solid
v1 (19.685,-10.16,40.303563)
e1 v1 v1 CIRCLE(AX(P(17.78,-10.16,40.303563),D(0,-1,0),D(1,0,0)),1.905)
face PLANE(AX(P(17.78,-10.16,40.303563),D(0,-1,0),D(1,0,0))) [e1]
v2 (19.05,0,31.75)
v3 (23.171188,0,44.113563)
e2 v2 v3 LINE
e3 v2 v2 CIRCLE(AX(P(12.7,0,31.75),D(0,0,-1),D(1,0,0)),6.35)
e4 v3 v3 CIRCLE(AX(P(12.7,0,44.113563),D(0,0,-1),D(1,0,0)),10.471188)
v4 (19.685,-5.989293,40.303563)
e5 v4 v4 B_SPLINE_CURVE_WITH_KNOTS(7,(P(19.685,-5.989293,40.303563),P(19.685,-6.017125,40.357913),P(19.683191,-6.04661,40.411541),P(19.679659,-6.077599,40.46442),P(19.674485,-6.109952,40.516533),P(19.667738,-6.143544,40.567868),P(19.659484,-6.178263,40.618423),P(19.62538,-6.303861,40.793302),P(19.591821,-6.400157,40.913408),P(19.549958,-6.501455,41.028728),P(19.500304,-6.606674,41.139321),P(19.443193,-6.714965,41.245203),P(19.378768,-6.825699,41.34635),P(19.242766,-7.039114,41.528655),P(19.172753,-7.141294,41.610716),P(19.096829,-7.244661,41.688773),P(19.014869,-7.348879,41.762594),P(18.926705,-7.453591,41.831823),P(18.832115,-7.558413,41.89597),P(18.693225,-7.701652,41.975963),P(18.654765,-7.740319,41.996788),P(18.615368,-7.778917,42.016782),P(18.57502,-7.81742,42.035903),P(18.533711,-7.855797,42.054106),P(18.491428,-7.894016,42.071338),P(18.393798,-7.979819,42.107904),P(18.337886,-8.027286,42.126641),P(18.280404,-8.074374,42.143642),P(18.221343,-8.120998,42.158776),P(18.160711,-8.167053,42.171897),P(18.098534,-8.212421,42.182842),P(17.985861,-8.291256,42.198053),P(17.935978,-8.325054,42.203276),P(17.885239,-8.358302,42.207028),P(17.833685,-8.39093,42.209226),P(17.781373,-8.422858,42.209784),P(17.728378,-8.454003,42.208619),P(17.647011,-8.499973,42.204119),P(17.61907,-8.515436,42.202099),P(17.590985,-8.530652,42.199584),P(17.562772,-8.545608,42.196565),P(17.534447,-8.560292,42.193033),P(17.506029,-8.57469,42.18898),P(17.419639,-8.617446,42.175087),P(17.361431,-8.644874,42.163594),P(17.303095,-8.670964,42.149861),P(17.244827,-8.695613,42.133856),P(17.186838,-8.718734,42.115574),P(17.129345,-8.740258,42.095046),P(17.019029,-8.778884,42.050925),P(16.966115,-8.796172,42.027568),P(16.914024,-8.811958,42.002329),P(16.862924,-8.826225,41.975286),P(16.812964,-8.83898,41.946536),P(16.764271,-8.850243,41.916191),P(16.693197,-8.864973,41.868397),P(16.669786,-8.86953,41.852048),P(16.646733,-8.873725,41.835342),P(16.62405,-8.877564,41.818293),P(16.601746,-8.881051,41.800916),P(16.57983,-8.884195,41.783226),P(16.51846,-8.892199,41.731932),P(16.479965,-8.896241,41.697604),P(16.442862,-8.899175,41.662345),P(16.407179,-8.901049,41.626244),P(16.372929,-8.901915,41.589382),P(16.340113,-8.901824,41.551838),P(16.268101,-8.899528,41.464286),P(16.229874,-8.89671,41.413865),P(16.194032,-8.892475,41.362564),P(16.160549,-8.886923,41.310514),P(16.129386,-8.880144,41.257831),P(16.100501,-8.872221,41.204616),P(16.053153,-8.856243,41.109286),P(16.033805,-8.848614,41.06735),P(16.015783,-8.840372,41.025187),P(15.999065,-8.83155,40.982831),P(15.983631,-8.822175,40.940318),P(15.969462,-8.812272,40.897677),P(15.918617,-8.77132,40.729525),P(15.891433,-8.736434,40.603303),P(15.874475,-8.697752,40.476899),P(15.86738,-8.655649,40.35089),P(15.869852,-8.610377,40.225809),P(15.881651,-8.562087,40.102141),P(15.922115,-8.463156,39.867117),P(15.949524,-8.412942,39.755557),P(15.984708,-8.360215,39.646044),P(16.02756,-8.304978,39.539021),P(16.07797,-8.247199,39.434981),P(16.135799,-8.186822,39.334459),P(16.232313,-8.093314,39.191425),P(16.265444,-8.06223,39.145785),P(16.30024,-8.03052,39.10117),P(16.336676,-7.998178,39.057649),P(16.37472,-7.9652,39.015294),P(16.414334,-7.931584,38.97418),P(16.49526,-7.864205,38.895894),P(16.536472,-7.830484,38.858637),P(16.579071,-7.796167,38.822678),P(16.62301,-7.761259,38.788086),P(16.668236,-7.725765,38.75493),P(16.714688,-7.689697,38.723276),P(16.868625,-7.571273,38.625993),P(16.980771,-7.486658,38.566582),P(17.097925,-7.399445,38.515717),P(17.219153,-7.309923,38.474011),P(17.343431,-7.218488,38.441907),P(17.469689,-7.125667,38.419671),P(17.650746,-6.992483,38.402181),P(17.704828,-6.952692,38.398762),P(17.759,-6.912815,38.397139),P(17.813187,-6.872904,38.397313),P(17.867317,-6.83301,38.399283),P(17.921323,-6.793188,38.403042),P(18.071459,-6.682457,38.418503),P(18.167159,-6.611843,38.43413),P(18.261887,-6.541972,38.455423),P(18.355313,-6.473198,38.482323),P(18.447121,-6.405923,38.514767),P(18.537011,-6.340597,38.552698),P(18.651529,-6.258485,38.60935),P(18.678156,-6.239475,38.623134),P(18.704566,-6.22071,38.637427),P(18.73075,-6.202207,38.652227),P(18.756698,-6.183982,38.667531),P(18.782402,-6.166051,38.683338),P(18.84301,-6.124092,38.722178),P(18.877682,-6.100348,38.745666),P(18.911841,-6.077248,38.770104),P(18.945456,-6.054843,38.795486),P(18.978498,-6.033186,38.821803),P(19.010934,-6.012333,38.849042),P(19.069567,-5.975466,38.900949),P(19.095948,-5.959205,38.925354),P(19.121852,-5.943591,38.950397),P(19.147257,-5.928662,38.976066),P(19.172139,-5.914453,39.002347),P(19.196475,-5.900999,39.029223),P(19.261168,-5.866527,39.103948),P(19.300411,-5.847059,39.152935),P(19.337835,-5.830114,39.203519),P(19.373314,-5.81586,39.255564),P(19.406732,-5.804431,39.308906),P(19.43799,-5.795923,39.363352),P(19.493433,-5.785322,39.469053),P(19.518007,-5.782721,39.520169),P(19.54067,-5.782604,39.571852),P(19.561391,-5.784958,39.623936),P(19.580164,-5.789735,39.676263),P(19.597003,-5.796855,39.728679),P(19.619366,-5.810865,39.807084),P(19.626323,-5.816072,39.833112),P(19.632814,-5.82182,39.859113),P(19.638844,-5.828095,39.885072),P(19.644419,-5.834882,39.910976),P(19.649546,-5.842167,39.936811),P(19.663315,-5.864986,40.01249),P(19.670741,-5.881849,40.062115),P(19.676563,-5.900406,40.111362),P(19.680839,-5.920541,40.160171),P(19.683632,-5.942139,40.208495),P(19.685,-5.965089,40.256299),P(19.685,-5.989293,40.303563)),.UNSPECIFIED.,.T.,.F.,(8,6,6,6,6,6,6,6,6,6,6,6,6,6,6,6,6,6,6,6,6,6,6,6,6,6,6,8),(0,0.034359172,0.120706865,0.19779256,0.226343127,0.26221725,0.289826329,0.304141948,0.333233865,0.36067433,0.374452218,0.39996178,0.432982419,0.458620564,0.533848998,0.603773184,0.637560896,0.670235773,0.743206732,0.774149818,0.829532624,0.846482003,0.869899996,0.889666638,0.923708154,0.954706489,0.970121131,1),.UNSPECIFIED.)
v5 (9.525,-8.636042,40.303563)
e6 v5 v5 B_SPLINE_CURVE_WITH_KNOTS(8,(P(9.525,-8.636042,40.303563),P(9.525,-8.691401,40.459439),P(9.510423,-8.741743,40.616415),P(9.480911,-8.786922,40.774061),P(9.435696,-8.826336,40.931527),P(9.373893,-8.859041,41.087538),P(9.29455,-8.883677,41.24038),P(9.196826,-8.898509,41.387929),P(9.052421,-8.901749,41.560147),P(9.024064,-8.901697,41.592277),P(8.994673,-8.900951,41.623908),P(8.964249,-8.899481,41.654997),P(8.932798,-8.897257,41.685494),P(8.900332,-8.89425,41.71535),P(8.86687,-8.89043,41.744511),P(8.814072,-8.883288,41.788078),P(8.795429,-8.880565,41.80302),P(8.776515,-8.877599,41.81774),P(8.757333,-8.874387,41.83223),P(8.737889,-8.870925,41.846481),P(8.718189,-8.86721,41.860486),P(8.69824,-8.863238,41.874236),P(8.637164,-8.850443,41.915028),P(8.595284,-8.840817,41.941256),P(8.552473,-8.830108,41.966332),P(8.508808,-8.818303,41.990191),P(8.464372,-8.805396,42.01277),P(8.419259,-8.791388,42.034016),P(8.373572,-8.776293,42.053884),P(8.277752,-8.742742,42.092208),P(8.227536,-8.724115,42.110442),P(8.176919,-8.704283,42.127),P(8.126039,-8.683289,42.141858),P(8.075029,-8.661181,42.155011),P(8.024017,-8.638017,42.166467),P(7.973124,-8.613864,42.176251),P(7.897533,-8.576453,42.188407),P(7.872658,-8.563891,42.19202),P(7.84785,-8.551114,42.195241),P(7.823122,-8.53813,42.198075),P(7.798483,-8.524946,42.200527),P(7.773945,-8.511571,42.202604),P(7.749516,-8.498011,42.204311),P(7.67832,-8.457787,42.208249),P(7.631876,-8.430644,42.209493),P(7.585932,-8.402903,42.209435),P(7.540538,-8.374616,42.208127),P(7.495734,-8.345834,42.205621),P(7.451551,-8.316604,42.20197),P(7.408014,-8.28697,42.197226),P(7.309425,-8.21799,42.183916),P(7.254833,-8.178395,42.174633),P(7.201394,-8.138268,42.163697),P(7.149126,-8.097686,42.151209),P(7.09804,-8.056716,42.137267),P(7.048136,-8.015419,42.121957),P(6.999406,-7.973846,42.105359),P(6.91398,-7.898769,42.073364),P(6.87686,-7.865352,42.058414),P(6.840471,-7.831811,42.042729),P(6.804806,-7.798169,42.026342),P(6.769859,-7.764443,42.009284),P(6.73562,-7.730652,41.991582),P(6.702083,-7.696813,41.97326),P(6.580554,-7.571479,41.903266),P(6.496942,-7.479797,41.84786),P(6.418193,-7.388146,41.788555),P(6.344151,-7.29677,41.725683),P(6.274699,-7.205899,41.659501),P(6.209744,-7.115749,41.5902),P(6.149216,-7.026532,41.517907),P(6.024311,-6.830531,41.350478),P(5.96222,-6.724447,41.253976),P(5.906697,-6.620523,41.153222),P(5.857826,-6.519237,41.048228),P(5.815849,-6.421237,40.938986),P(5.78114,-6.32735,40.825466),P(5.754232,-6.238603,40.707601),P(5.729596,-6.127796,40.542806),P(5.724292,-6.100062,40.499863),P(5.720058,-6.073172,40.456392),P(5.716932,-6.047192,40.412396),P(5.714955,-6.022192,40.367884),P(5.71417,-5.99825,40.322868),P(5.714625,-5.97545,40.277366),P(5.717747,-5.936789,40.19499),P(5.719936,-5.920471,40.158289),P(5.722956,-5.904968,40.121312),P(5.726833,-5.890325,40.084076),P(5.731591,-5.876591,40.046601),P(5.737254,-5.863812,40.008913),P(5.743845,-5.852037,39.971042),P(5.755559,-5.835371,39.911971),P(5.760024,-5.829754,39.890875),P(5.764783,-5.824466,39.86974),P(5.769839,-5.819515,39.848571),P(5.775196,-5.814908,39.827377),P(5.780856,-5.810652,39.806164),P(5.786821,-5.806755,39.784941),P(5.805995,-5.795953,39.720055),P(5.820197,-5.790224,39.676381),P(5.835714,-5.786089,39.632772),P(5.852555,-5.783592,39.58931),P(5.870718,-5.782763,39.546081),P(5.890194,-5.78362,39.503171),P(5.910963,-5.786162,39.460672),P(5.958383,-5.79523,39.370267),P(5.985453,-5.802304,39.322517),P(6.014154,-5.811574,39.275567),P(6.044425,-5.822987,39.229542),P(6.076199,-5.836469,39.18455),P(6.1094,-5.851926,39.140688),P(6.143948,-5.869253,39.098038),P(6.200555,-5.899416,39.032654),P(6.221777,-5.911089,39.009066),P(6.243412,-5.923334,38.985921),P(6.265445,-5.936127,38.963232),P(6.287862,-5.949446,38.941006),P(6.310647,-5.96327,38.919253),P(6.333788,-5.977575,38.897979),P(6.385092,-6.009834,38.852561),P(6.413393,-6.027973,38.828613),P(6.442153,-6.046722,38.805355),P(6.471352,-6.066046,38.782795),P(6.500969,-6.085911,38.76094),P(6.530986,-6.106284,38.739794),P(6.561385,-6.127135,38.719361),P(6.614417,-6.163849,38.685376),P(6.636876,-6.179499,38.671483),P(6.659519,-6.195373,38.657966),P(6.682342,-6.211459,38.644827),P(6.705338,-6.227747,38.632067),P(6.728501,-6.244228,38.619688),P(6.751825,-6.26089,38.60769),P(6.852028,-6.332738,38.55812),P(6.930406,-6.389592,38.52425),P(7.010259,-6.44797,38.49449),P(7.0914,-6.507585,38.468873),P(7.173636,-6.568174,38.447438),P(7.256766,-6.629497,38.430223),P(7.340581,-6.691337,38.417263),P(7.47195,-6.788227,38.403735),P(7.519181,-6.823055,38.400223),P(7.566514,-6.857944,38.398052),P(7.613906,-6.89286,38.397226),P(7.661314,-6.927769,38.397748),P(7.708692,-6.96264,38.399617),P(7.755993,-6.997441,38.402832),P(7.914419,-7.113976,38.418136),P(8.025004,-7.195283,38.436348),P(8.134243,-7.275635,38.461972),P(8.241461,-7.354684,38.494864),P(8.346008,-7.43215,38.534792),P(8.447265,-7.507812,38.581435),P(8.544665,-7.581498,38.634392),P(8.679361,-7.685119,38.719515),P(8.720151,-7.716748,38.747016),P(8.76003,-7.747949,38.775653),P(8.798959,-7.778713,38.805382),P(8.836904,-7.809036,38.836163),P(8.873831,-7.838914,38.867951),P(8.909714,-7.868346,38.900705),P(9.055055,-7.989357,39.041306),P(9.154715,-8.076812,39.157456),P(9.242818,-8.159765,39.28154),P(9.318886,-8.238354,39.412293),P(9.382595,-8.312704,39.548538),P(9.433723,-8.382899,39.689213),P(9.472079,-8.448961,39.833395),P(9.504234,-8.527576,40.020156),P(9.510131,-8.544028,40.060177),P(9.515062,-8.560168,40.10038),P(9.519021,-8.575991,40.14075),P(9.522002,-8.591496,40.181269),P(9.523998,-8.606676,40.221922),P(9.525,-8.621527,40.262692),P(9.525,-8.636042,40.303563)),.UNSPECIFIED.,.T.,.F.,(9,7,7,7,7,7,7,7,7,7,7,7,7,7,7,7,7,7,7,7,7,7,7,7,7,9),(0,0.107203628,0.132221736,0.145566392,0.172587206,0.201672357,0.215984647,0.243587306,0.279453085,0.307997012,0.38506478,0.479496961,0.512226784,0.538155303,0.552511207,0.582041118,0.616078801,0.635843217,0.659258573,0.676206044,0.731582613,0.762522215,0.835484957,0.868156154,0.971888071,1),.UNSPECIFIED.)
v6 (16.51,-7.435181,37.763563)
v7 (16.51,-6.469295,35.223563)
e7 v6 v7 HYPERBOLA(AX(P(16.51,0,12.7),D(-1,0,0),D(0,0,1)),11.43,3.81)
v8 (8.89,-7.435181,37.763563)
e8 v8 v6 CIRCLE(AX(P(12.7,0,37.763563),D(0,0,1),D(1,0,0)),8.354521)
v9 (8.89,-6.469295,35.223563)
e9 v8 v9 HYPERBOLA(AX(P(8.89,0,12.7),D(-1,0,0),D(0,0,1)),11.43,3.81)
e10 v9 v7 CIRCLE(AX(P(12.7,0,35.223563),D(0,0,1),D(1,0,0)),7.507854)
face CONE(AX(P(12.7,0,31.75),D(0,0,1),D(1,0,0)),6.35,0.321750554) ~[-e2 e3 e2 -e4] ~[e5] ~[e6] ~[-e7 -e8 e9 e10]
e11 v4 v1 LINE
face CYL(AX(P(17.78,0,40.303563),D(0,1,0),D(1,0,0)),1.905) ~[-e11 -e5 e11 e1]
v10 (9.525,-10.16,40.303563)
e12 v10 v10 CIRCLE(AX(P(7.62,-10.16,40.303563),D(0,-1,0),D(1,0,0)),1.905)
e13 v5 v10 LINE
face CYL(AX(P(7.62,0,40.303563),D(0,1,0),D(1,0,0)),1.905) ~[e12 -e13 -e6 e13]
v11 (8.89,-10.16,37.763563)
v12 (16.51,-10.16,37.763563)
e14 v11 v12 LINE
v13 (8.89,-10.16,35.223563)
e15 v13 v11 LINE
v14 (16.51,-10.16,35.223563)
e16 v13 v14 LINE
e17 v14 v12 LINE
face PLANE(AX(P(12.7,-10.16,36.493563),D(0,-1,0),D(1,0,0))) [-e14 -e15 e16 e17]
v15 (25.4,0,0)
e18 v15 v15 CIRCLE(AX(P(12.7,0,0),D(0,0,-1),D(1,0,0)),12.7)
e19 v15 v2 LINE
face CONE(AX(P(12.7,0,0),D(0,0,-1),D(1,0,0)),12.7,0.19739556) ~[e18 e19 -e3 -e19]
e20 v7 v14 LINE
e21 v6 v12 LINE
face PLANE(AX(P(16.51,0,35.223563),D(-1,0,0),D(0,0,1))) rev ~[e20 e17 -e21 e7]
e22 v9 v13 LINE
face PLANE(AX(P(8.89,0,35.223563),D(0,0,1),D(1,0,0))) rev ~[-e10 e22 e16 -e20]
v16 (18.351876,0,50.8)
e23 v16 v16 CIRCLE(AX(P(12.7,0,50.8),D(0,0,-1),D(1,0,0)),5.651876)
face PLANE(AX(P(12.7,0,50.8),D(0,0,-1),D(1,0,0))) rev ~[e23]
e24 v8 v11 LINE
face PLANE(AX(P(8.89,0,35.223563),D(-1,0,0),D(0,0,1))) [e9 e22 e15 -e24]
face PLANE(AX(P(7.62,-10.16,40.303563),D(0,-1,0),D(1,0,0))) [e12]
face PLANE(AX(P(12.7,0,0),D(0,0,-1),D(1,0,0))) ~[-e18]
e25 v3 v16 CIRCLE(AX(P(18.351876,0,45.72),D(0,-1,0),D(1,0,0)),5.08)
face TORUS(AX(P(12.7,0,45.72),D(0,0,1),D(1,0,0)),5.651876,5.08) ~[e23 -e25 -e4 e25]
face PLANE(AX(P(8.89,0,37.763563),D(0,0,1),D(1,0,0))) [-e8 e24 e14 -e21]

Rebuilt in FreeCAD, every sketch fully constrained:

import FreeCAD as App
import Part
import Sketcher
from FreeCAD import Vector
Q = App.Units.Quantity


def edges_at(feature, points):
    """Names of the edges that pass closest to the given points."""
    edges = feature.Shape.Edges
    near = lambda p: min(range(len(edges)), key=lambda i: edges[i].distToShape(Part.Vertex(*p))[0])
    return sorted({f"Edge{near(p) + 1}" for p in points})


def add_polygon(sketch, points):
    """Adds a closed chain of lines whose ends are joined by coincident constraints."""
    first, n = sketch.GeometryCount, len(points)
    for a, b in zip(points, points[1:] + points[:1]):
        sketch.addGeometry(Part.LineSegment(App.Vector(*a, 0), App.Vector(*b, 0)), False)
    for i in range(n):
        sketch.addConstraint(Sketcher.Constraint("Coincident", first + i, 2, first + (i + 1) % n, 1))

doc = App.newDocument("Part")
params = doc.addObject("Spreadsheet::Sheet", "Params")
for row, (alias, value) in enumerate([
    ("sketch1_height", "2 in"),
    ("sketch1_width", "0.5 in"),
    ("revolution_angle", "360 deg"),
    ("fillet_radius", "0.2 in"),
    ("sketch2_diameter", "0.15 in"),
    ("sketch2_width", "0.3 in"),
    ("sketch2_height", "0.1 in"),
    ("pad1_length", "0.4 in"),
], start=1):
    params.set(f"A{row}", alias)
    params.set(f"B{row}", "=" + value)
    params.setAlias(f"B{row}", alias)

body = doc.addObject("PartDesign::Body", "Body")

sketch1 = body.newObject("Sketcher::SketchObject", "Sketch")
sketch1.AttachmentSupport = (doc.getObject("XZ_Plane"), [""])
sketch1.MapMode = "FlatFace"
add_polygon(sketch1, [(12.7, 50.8), (12.7, 0), (25.4, 0), (19.05, 31.75), (25.4, 50.8)])
sketch1.addGeometry(Part.LineSegment(Vector(12.7, 50.8, 0), Vector(12.7, 0, 0)), True)
sketch1.addConstraint([
    Sketcher.Constraint("Vertical", 0),
    Sketcher.Constraint("Horizontal", 1),
    Sketcher.Constraint("Horizontal", 4),
    Sketcher.Constraint("Vertical", 5),
    Sketcher.Constraint("Coincident", 5, 1, 4, 2),
    Sketcher.Constraint("PointOnObject", 0, 2, -1),
    Sketcher.Constraint("PointOnObject", 5, 2, -1),
    Sketcher.Constraint("Vertical", 1, 2, 3, 2),
    Sketcher.Constraint("DistanceY", 0, 2, 0, 1, Q("2 in")),
    Sketcher.Constraint("DistanceX", 1, 1, 1, 2, Q("0.5 in")),
    Sketcher.Constraint("DistanceX", -1, 1, 1, 2, Q("1 in")),
    Sketcher.Constraint("DistanceX", -1, 1, 2, 2, Q("0.75 in")),
    Sketcher.Constraint("DistanceY", -1, 1, 2, 2, Q("1.25 in")),
])
sketch1.setExpression("Constraints[13]", "Params.sketch1_height")
sketch1.setExpression("Constraints[14]", "Params.sketch1_width")
revolution = body.newObject("PartDesign::Revolution", "Revolution")
revolution.Profile = sketch1
revolution.ReferenceAxis = (sketch1, ["Axis0"])
revolution.setExpression("Angle", "Params.revolution_angle")
doc.recompute()

fillet = body.newObject("PartDesign::Fillet", "Fillet")
fillet.Base = (revolution, edges_at(revolution, [(0, 0, 50.8)]))
fillet.setExpression("Radius", "Params.fillet_radius")

sketch2 = body.newObject("Sketcher::SketchObject", "Sketch001")
sketch2.AttachmentSupport = (doc.getObject("XZ_Plane"), [""])
sketch2.MapMode = "FlatFace"
sketch2.addGeometry(Part.Circle(Vector(7.62, 40.303563, 0), Vector(0, 0, 1), 1.905), False)
sketch2.addGeometry(Part.Circle(Vector(17.78, 40.303563, 0), Vector(0, 0, 1), 1.905), False)
add_polygon(sketch2, [(8.89, 37.763563), (8.89, 35.223563), (16.51, 35.223563), (16.51, 37.763563)])
sketch2.addConstraint([
    Sketcher.Constraint("Vertical", 2),
    Sketcher.Constraint("Horizontal", 3),
    Sketcher.Constraint("Vertical", 4),
    Sketcher.Constraint("Horizontal", 5),
    Sketcher.Constraint("Equal", 0, 1),
    Sketcher.Constraint("Horizontal", 0, 3, 1, 3),
    Sketcher.Constraint("Diameter", 0, Q("0.15 in")),
    Sketcher.Constraint("DistanceX", 3, 1, 3, 2, Q("0.3 in")),
    Sketcher.Constraint("DistanceY", 2, 2, 2, 1, Q("0.1 in")),
    Sketcher.Constraint("DistanceX", -1, 1, 0, 3, Q("0.3 in")),
    Sketcher.Constraint("DistanceX", -1, 1, 1, 3, Q("0.7 in")),
    Sketcher.Constraint("DistanceY", 2, 2, 0, 3, Q("0.2 in")),
    Sketcher.Constraint("DistanceX", -1, 1, 2, 2, Q("0.35 in")),
    Sketcher.Constraint("DistanceY", -1, 1, 0, 3, Q("40.303563 mm")),
])
sketch2.setExpression("Constraints[10]", "Params.sketch2_diameter")
sketch2.setExpression("Constraints[11]", "Params.sketch2_width")
sketch2.setExpression("Constraints[12]", "Params.sketch2_height")
pad1 = body.newObject("PartDesign::Pad", "Pad")
pad1.Profile = sketch2
pad1.setExpression("Length", "Params.pad1_length")

doc.recompute()
